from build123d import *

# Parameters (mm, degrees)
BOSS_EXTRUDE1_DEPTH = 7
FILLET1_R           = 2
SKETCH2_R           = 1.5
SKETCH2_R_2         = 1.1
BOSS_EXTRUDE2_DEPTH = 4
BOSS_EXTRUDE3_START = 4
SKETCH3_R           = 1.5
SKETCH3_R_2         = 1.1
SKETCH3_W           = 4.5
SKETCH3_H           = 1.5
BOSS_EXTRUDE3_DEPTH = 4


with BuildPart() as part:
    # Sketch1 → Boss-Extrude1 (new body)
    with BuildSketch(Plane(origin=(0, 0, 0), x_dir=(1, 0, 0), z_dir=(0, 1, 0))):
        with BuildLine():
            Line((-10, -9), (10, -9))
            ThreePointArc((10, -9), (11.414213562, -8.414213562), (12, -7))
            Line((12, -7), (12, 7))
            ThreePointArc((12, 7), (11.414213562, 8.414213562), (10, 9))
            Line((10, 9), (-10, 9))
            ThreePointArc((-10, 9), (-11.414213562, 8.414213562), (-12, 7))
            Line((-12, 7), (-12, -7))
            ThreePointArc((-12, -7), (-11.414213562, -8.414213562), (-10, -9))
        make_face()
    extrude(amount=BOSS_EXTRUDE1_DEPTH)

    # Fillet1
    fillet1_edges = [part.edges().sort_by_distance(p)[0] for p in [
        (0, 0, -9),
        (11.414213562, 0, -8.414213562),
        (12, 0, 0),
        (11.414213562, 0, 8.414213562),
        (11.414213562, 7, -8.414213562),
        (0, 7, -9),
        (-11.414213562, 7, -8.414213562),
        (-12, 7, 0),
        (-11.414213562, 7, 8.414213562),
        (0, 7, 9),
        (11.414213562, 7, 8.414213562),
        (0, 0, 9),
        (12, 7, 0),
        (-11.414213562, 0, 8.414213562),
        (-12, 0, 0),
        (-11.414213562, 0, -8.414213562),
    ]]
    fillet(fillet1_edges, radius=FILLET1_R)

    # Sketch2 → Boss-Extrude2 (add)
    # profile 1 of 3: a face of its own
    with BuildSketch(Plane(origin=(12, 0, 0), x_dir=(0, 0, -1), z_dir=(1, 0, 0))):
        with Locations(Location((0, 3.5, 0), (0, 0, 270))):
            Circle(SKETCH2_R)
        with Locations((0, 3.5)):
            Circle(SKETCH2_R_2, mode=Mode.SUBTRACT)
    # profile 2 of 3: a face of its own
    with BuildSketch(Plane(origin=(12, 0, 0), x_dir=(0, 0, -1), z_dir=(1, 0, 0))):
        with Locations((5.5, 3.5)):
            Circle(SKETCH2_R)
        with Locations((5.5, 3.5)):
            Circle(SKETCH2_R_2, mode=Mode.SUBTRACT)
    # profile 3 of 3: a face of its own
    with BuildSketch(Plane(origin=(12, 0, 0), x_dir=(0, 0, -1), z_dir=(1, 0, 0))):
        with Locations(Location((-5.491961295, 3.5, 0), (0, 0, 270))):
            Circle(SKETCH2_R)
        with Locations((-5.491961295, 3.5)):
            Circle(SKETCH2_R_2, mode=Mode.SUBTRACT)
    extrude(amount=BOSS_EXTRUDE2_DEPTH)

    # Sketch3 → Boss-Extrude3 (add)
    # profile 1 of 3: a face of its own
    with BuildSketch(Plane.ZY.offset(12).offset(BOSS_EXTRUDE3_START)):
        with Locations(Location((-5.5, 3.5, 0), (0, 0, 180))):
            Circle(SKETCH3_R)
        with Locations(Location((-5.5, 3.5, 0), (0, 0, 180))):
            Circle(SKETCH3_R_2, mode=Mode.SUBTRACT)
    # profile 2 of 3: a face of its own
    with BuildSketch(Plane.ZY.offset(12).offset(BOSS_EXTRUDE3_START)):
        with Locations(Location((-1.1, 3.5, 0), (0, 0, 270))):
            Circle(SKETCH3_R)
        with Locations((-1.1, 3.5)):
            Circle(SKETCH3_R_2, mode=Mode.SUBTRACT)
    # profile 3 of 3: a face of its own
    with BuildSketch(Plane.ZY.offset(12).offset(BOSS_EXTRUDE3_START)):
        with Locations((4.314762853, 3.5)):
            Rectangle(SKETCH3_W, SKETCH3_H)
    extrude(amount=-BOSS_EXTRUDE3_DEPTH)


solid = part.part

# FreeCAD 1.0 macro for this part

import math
import FreeCAD as App
import Part
import Sketcher
from FreeCAD import Vector
Q = App.Units.Quantity


def edges_at(feature, points):
    """Names of the edges that pass closest to the given points."""
    edges = feature.Shape.Edges
    near = lambda p: min(range(len(edges)), key=lambda i: edges[i].distToShape(Part.Vertex(*p))[0])
    return sorted({f"Edge{near(p) + 1}" for p in points})

doc = App.newDocument("Part")
body = doc.addObject("PartDesign::Body", "Body")

sketch1 = body.newObject("Sketcher::SketchObject", "Sketch")
sketch1.AttachmentSupport = (doc.getObject("XZ_Plane"), [""])
sketch1.MapMode = "FlatFace"
sketch1.addGeometry([
    Part.LineSegment(Vector(-10, 9, 0), Vector(10, 9, 0)),
    Part.ArcOfCircle(Part.Circle(Vector(10, 7, 0), Vector(0, 0, 1), 2), math.radians(0), math.radians(90)),
    Part.LineSegment(Vector(12, 7, 0), Vector(12, -7, 0)),
    Part.ArcOfCircle(Part.Circle(Vector(10, -7, 0), Vector(0, 0, 1), 2), math.radians(-90), math.radians(0)),
    Part.LineSegment(Vector(10, -9, 0), Vector(-10, -9, 0)),
    Part.ArcOfCircle(Part.Circle(Vector(-10, -7, 0), Vector(0, 0, 1), 2), math.radians(-180), math.radians(-90)),
    Part.LineSegment(Vector(-12, -7, 0), Vector(-12, 7, 0)),
    Part.ArcOfCircle(Part.Circle(Vector(-10, 7, 0), Vector(0, 0, 1), 2), math.radians(90), math.radians(180)),
], False)
sketch1.addConstraint([
    Sketcher.Constraint("Tangent", 0, 2, 1, 2),
    Sketcher.Constraint("Tangent", 1, 1, 2, 1),
    Sketcher.Constraint("Tangent", 2, 2, 3, 2),
    Sketcher.Constraint("Tangent", 3, 1, 4, 1),
    Sketcher.Constraint("Tangent", 4, 2, 5, 2),
    Sketcher.Constraint("Tangent", 5, 1, 6, 1),
    Sketcher.Constraint("Tangent", 6, 2, 7, 2),
    Sketcher.Constraint("Tangent", 7, 1, 0, 1),
    Sketcher.Constraint("Horizontal", 0),
    Sketcher.Constraint("Vertical", 2),
    Sketcher.Constraint("Horizontal", 4),
    Sketcher.Constraint("Vertical", 6),
    Sketcher.Constraint("Equal", 1, 3),
    Sketcher.Constraint("Equal", 3, 5),
    Sketcher.Constraint("Equal", 5, 7),
    Sketcher.Constraint("Symmetric", 1, 3, 5, 3, -1, 1),
    Sketcher.Constraint("Radius", 1, Q("2 mm")),
    Sketcher.Constraint("DistanceX", 0, 1, 0, 2, Q("20 mm")),
    Sketcher.Constraint("DistanceY", 2, 2, 2, 1, Q("14 mm")),
])
pad1 = body.newObject("PartDesign::Pad", "Pad")
pad1.Profile = sketch1
pad1.Length = 7
pad1.Reversed = True
doc.recompute()

fillet = body.newObject("PartDesign::Fillet", "Fillet")
fillet.Base = (pad1, edges_at(pad1, [
    (0, 0, -9),
    (11.414, 0, -8.414),
    (12, 0, 0),
    (11.414, 0, 8.414),
    (11.414, 7, -8.414),
    (0, 7, -9),
    (-11.414, 7, -8.414),
    (-12, 7, 0),
    (-11.414, 7, 8.414),
    (0, 7, 9),
    (11.414, 7, 8.414),
    (0, 0, 9),
    (12, 7, 0),
    (-11.414, 0, 8.414),
    (-12, 0, 0),
    (-11.414, 0, -8.414),
]))
fillet.Radius = 2

sketch2 = body.newObject("Sketcher::SketchObject", "Sketch001")
sketch2.AttachmentSupport = (doc.getObject("YZ_Plane"), [""])
sketch2.MapMode = "FlatFace"
sketch2.AttachmentOffset = App.Placement(Vector(0, 0, 12), App.Rotation())
sketch2.addGeometry([
    Part.Circle(Vector(3.5, 0, 0), Vector(0, 0, 1), 1.5),
    Part.Circle(Vector(3.5, 0, 0), Vector(0, 0, 1), 1.1),
    Part.Circle(Vector(3.5, -5.5, 0), Vector(0, 0, 1), 1.5),
    Part.Circle(Vector(3.5, -5.5, 0), Vector(0, 0, 1), 1.1),
    Part.Circle(Vector(3.5, 5.491961, 0), Vector(0, 0, 1), 1.5),
    Part.Circle(Vector(3.5, 5.491961, 0), Vector(0, 0, 1), 1.1),
], False)
sketch2.addConstraint([
    Sketcher.Constraint("Coincident", 1, 3, 0, 3),
    Sketcher.Constraint("Coincident", 3, 3, 2, 3),
    Sketcher.Constraint("Coincident", 5, 3, 4, 3),
    Sketcher.Constraint("Equal", 0, 2),
    Sketcher.Constraint("Equal", 1, 3),
    Sketcher.Constraint("Equal", 2, 4),
    Sketcher.Constraint("Equal", 3, 5),
    Sketcher.Constraint("PointOnObject", 0, 3, -1),
    Sketcher.Constraint("Vertical", 1, 3, 2, 3),
    Sketcher.Constraint("Vertical", 3, 3, 4, 3),
    Sketcher.Constraint("Diameter", 0, Q("3 mm")),
    Sketcher.Constraint("Diameter", 1, Q("2.2 mm")),
    Sketcher.Constraint("DistanceX", -1, 1, 0, 3, Q("3.5 mm")),
    Sketcher.Constraint("DistanceY", 2, 3, -1, 1, Q("5.5 mm")),
    Sketcher.Constraint("DistanceY", -1, 1, 4, 3, Q("5.491961 mm")),
])
pad2 = body.newObject("PartDesign::Pad", "Pad001")
pad2.Profile = sketch2
pad2.Length = 4

sketch3 = body.newObject("Sketcher::SketchObject", "Sketch002")
sketch3.AttachmentSupport = (doc.getObject("YZ_Plane"), [""])
sketch3.MapMode = "FlatFace"
sketch3.AttachmentOffset = App.Placement(Vector(0, 0, -16), App.Rotation())
sketch3.addGeometry([
    Part.Circle(Vector(3.5, -5.5, 0), Vector(0, 0, 1), 1.5),
    Part.Circle(Vector(3.5, -5.5, 0), Vector(0, 0, 1), 1.1),
    Part.Circle(Vector(3.5, -1.1, 0), Vector(0, 0, 1), 1.5),
    Part.Circle(Vector(3.5, -1.1, 0), Vector(0, 0, 1), 1.1),
    Part.LineSegment(Vector(4.25, 2.064763, 0), Vector(2.75, 2.064763, 0)),
    Part.LineSegment(Vector(2.75, 2.064763, 0), Vector(2.75, 6.564763, 0)),
    Part.LineSegment(Vector(2.75, 6.564763, 0), Vector(4.25, 6.564763, 0)),
    Part.LineSegment(Vector(4.25, 6.564763, 0), Vector(4.25, 2.064763, 0)),
], False)
sketch3.addConstraint([
    Sketcher.Constraint("Coincident", 4, 2, 5, 1),
    Sketcher.Constraint("Coincident", 5, 2, 6, 1),
    Sketcher.Constraint("Coincident", 6, 2, 7, 1),
    Sketcher.Constraint("Coincident", 7, 2, 4, 1),
    Sketcher.Constraint("Horizontal", 4),
    Sketcher.Constraint("Vertical", 5),
    Sketcher.Constraint("Horizontal", 6),
    Sketcher.Constraint("Vertical", 7),
    Sketcher.Constraint("Coincident", 1, 3, 0, 3),
    Sketcher.Constraint("Coincident", 3, 3, 2, 3),
    Sketcher.Constraint("Equal", 0, 2),
    Sketcher.Constraint("Equal", 1, 3),
    Sketcher.Constraint("Vertical", 1, 3, 2, 3),
    Sketcher.Constraint("Diameter", 0, Q("3 mm")),
    Sketcher.Constraint("Diameter", 1, Q("2.2 mm")),
    Sketcher.Constraint("DistanceX", 4, 2, 4, 1, Q("1.5 mm")),
    Sketcher.Constraint("DistanceY", 5, 1, 5, 2, Q("4.5 mm")),
    Sketcher.Constraint("DistanceX", -1, 1, 0, 3, Q("3.5 mm")),
    Sketcher.Constraint("DistanceY", 0, 3, -1, 1, Q("5.5 mm")),
    Sketcher.Constraint("DistanceY", 2, 3, -1, 1, Q("1.1 mm")),
    Sketcher.Constraint("DistanceX", -1, 1, 4, 2, Q("2.75 mm")),
    Sketcher.Constraint("DistanceY", -1, 1, 4, 2, Q("2.064763 mm")),
])
pad3 = body.newObject("PartDesign::Pad", "Pad002")
pad3.Profile = sketch3
pad3.Length = 4

doc.recompute()
